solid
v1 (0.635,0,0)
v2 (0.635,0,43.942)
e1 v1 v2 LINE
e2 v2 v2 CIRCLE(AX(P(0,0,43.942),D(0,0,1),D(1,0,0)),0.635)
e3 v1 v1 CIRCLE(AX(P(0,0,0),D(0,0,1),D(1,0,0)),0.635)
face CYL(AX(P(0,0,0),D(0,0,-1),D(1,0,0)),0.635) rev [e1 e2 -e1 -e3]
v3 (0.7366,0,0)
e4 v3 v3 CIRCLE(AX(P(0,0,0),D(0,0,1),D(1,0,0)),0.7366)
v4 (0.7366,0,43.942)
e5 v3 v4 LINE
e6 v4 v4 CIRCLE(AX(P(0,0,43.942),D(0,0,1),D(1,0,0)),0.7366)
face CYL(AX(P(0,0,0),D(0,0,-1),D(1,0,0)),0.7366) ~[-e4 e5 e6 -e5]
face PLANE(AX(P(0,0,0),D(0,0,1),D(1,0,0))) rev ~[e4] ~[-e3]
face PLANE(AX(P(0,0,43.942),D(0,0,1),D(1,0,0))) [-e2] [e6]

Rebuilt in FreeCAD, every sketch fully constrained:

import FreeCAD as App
import Part
import Sketcher

V = App.Vector
Q = App.Units.Quantity

doc = App.newDocument("Part")
body = doc.addObject("PartDesign::Body", "Body")

# Sketch on XY plane
sketch1 = body.newObject("Sketcher::SketchObject", "Sketch")
sketch1.AttachmentSupport = (doc.getObject("XY_Plane"), [""])
sketch1.MapMode = "FlatFace"
sketch1.addGeometry([
    Part.Circle(V(0, 0, 0), V(0, 0, 1), 0.7),
    Part.Circle(V(0, 0, 0), V(0, 0, 1), 0.6),
], False)
sketch1.addConstraint([
    Sketcher.Constraint("Coincident", 0, 3, -1, 1),
    Sketcher.Constraint("Coincident", 1, 3, -1, 1),
    Sketcher.Constraint("Diameter", 1, Q("0.05 in")),
    Sketcher.Constraint("Diameter", 0, Q("0.058 in")),
])
pad1 = body.newObject("PartDesign::Pad", "Pad")
pad1.Profile = sketch1
pad1.Length = Q("1.73 in")

doc.recompute()
